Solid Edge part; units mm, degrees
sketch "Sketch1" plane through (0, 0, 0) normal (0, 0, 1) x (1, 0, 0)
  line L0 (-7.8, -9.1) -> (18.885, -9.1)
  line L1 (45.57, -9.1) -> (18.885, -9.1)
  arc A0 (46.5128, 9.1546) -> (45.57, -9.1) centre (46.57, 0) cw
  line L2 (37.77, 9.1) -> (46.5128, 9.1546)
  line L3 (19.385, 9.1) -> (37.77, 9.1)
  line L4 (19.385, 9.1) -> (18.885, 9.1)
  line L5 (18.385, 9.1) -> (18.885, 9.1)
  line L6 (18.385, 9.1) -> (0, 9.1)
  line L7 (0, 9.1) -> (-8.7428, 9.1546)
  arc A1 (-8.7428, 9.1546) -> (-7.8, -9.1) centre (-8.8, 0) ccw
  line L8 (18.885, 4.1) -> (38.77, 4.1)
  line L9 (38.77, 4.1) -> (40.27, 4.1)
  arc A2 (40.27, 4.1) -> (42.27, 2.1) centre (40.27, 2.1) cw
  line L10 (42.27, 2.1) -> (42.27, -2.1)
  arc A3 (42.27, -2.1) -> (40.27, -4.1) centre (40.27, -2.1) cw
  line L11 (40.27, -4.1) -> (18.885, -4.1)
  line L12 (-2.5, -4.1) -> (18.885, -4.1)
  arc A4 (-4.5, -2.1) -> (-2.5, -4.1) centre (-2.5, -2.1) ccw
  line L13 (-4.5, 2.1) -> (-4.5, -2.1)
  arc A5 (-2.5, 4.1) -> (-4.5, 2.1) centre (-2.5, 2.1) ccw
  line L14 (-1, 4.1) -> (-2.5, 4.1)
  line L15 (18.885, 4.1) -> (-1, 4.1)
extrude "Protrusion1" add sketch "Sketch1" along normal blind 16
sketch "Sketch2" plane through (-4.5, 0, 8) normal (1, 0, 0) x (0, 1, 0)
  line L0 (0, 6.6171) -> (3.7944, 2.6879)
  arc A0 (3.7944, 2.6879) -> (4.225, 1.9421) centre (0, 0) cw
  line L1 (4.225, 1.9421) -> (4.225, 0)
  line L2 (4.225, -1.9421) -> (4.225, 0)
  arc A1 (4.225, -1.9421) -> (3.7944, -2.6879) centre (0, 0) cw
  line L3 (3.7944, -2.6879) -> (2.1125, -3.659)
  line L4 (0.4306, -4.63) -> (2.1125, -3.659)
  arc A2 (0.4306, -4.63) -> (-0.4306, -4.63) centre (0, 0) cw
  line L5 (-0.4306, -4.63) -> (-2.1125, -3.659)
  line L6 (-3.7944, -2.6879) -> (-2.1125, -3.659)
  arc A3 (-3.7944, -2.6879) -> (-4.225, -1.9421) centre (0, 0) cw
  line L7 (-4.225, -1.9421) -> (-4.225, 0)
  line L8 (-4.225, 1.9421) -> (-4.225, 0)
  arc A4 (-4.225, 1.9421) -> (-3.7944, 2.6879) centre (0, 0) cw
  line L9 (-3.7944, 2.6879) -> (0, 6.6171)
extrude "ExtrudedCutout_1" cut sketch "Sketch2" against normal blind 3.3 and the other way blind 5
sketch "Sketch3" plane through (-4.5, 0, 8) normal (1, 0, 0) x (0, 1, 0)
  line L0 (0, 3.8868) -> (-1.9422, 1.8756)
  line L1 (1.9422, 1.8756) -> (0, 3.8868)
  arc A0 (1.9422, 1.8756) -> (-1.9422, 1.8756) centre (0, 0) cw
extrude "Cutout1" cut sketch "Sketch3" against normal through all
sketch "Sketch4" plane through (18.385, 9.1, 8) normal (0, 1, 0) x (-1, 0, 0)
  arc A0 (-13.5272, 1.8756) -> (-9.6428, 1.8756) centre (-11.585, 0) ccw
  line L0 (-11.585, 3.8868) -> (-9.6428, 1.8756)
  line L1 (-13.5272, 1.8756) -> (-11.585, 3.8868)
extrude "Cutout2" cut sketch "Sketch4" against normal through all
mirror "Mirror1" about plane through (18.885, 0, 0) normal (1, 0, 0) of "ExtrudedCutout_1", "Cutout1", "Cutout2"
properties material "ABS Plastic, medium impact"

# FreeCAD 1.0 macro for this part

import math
import FreeCAD as App
import Part
import Sketcher
Q = App.Units.Quantity

doc = App.newDocument("Part")
body = doc.addObject("PartDesign::Body", "Body")

# Sketch on XY plane
sketch1 = body.newObject("Sketcher::SketchObject", "Sketch")
sketch1.AttachmentSupport = (doc.getObject("XY_Plane"), [""])
sketch1.MapMode = "FlatFace"
sketch1.addGeometry(Part.ArcOfCircle(Part.Circle(App.Vector(-8.8, 0, 0), App.Vector(0, 0, 1), 9.2), math.radians(90), math.radians(276)), False)
sketch1.addGeometry(Part.LineSegment(App.Vector(-7.8, -9.1, 0), App.Vector(45.6, -9.1, 0)), False)
sketch1.addGeometry(Part.ArcOfCircle(Part.Circle(App.Vector(46.6, 0, 0), App.Vector(0, 0, 1), 9.2), math.radians(-96), math.radians(90)), False)
sketch1.addGeometry(Part.LineSegment(App.Vector(46.5, 9.2, 0), App.Vector(37.8, 9.1, 0)), False)
sketch1.addGeometry(Part.LineSegment(App.Vector(37.8, 9.1, 0), App.Vector(0, 9.1, 0)), False)
sketch1.addGeometry(Part.LineSegment(App.Vector(0, 9.1, 0), App.Vector(-8.7, 9.2, 0)), False)
sketch1.addGeometry(Part.LineSegment(App.Vector(-2.5, 4.1, 0), App.Vector(40.3, 4.1, 0)), False)
sketch1.addGeometry(Part.ArcOfCircle(Part.Circle(App.Vector(40.3, 2.1, 0), App.Vector(0, 0, 1), 2), math.radians(0), math.radians(90)), False)
sketch1.addGeometry(Part.LineSegment(App.Vector(42.3, 2.1, 0), App.Vector(42.3, -2.1, 0)), False)
sketch1.addGeometry(Part.ArcOfCircle(Part.Circle(App.Vector(40.3, -2.1, 0), App.Vector(0, 0, 1), 2), math.radians(-90), math.radians(0)), False)
sketch1.addGeometry(Part.LineSegment(App.Vector(40.3, -4.1, 0), App.Vector(-2.5, -4.1, 0)), False)
sketch1.addGeometry(Part.ArcOfCircle(Part.Circle(App.Vector(-2.5, -2.1, 0), App.Vector(0, 0, 1), 2), math.radians(180), math.radians(270)), False)
sketch1.addGeometry(Part.LineSegment(App.Vector(-4.5, -2.1, 0), App.Vector(-4.5, 2.1, 0)), False)
sketch1.addGeometry(Part.ArcOfCircle(Part.Circle(App.Vector(-2.5, 2.1, 0), App.Vector(0, 0, 1), 2), math.radians(90), math.radians(180)), False)
sketch1.addConstraint(Sketcher.Constraint("Coincident", 0, 2, 1, 1))
sketch1.addConstraint(Sketcher.Constraint("Coincident", 1, 2, 2, 1))
sketch1.addConstraint(Sketcher.Constraint("Tangent", 2, 2, 3, 1))
sketch1.addConstraint(Sketcher.Constraint("Coincident", 3, 2, 4, 1))
sketch1.addConstraint(Sketcher.Constraint("Coincident", 4, 2, 5, 1))
sketch1.addConstraint(Sketcher.Constraint("Tangent", 5, 2, 0, 1))
sketch1.addConstraint(Sketcher.Constraint("Tangent", 6, 2, 7, 2))
sketch1.addConstraint(Sketcher.Constraint("Tangent", 7, 1, 8, 1))
sketch1.addConstraint(Sketcher.Constraint("Tangent", 8, 2, 9, 2))
sketch1.addConstraint(Sketcher.Constraint("Tangent", 9, 1, 10, 1))
sketch1.addConstraint(Sketcher.Constraint("Tangent", 10, 2, 11, 2))
sketch1.addConstraint(Sketcher.Constraint("Tangent", 11, 1, 12, 1))
sketch1.addConstraint(Sketcher.Constraint("Tangent", 12, 2, 13, 2))
sketch1.addConstraint(Sketcher.Constraint("Tangent", 13, 1, 6, 1))
sketch1.addConstraint(Sketcher.Constraint("Horizontal", 1))
sketch1.addConstraint(Sketcher.Constraint("Horizontal", 4))
sketch1.addConstraint(Sketcher.Constraint("Horizontal", 6))
sketch1.addConstraint(Sketcher.Constraint("Vertical", 8))
sketch1.addConstraint(Sketcher.Constraint("Horizontal", 10))
sketch1.addConstraint(Sketcher.Constraint("Vertical", 12))
sketch1.addConstraint(Sketcher.Constraint("Equal", 0, 2))
sketch1.addConstraint(Sketcher.Constraint("Equal", 7, 9))
sketch1.addConstraint(Sketcher.Constraint("Equal", 9, 11))
sketch1.addConstraint(Sketcher.Constraint("Equal", 11, 13))
sketch1.addConstraint(Sketcher.Constraint("PointOnObject", 0, 3, -1))
sketch1.addConstraint(Sketcher.Constraint("PointOnObject", 2, 3, -1))
sketch1.addConstraint(Sketcher.Constraint("PointOnObject", 4, 2, -2))
sketch1.addConstraint(Sketcher.Constraint("Equal", 3, 5))
sketch1.addConstraint(Sketcher.Constraint("Radius", 7, 2.0))
sketch1.addConstraint(Sketcher.Constraint("DistanceY", 8, 2, 8, 1, 4.2))
sketch1.addConstraint(Sketcher.Constraint("DistanceY", 0, 2, 11, 3, 7.0))
sketch1.addConstraint(Sketcher.Constraint("DistanceX", 0, 3, 0, 2, 1.0))
sketch1.addConstraint(Sketcher.Constraint("DistanceY", 7, 3, 3, 2, 7.0))
sketch1.addConstraint(Sketcher.Constraint("DistanceX", 1, 1, 1, 2, 53.37))
sketch1.addConstraint(Sketcher.Constraint("DistanceX", 4, 2, 4, 1, 37.77))
sketch1.addConstraint(Sketcher.Constraint("DistanceX", 6, 1, 6, 2, 42.77))
sketch1.addConstraint(Sketcher.Constraint("DistanceY", -1, 1, 7, 3, 2.1))
sketch1.addConstraint(Sketcher.Constraint("DistanceX", 11, 3, -1, 1, 2.5))
pad1 = body.newObject("PartDesign::Pad", "Pad")
pad1.Profile = sketch1
pad1.Length = 16

# Sketch on YZ plane
sketch2 = body.newObject("Sketcher::SketchObject", "Sketch001")
sketch2.AttachmentSupport = (doc.getObject("YZ_Plane"), [""])
sketch2.MapMode = "FlatFace"
sketch2.AttachmentOffset = App.Placement(App.Vector(0, 0, -4.5), App.Rotation())
sketch2.addGeometry(Part.LineSegment(App.Vector(3.7944, 10.6879, 0), App.Vector(0, 14.6171, 0)), False)
sketch2.addGeometry(Part.LineSegment(App.Vector(0, 14.6171, 0), App.Vector(-3.7944, 10.6879, 0)), False)
sketch2.addGeometry(Part.ArcOfCircle(Part.Circle(App.Vector(-0.001108, 8.000573, 0), App.Vector(0, 0, 1), 4.64874), math.radians(144.684643), math.radians(155.313954)), False)
sketch2.addGeometry(Part.LineSegment(App.Vector(-4.225, 9.9421, 0), App.Vector(-4.225, 6.0579, 0)), False)
sketch2.addGeometry(Part.ArcOfCircle(Part.Circle(App.Vector(0.001051, 8.000674, 0), App.Vector(0, 0, 1), 4.651223), math.radians(-155.311109), math.radians(-144.687488)), False)
sketch2.addGeometry(Part.LineSegment(App.Vector(-3.7944, 5.3121, 0), App.Vector(-2.1125, 4.341, 0)), False)
sketch2.addGeometry(Part.LineSegment(App.Vector(-2.1125, 4.341, 0), App.Vector(-0.4306, 3.37, 0)), False)
sketch2.addGeometry(Part.ArcOfCircle(Part.Circle(App.Vector(0, 8, 0), App.Vector(0, 0, 1), 4.64998), math.radians(-95.313347), math.radians(-84.686653)), False)
sketch2.addGeometry(Part.LineSegment(App.Vector(0.4306, 3.37, 0), App.Vector(2.1125, 4.341, 0)), False)
sketch2.addGeometry(Part.LineSegment(App.Vector(2.1125, 4.341, 0), App.Vector(3.7944, 5.3121, 0)), False)
sketch2.addGeometry(Part.ArcOfCircle(Part.Circle(App.Vector(0.001108, 7.999427, 0), App.Vector(0, 0, 1), 4.64874), math.radians(-35.315357), math.radians(-24.686046)), False)
sketch2.addGeometry(Part.LineSegment(App.Vector(4.225, 6.0579, 0), App.Vector(4.225, 9.9421, 0)), False)
sketch2.addGeometry(Part.ArcOfCircle(Part.Circle(App.Vector(-0.001051, 7.999326, 0), App.Vector(0, 0, 1), 4.651223), math.radians(24.688891), math.radians(35.312512)), False)
sketch2.addConstraint(Sketcher.Constraint("Coincident", 0, 2, 1, 1))
sketch2.addConstraint(Sketcher.Constraint("Coincident", 1, 2, 2, 1))
sketch2.addConstraint(Sketcher.Constraint("Coincident", 2, 2, 3, 1))
sketch2.addConstraint(Sketcher.Constraint("Coincident", 3, 2, 4, 1))
sketch2.addConstraint(Sketcher.Constraint("Coincident", 4, 2, 5, 1))
sketch2.addConstraint(Sketcher.Constraint("Coincident", 5, 2, 6, 1))
sketch2.addConstraint(Sketcher.Constraint("Coincident", 6, 2, 7, 1))
sketch2.addConstraint(Sketcher.Constraint("Coincident", 7, 2, 8, 1))
sketch2.addConstraint(Sketcher.Constraint("Coincident", 8, 2, 9, 1))
sketch2.addConstraint(Sketcher.Constraint("Coincident", 9, 2, 10, 1))
sketch2.addConstraint(Sketcher.Constraint("Coincident", 10, 2, 11, 1))
sketch2.addConstraint(Sketcher.Constraint("Coincident", 11, 2, 12, 1))
sketch2.addConstraint(Sketcher.Constraint("Coincident", 12, 2, 0, 1))
sketch2.addConstraint(Sketcher.Constraint("Vertical", 3))
sketch2.addConstraint(Sketcher.Constraint("Vertical", 11))
sketch2.addConstraint(Sketcher.Constraint("Equal", 2, 10))
sketch2.addConstraint(Sketcher.Constraint("Equal", 4, 12))
sketch2.addConstraint(Sketcher.Constraint("Symmetric", 2, 3, 4, 3, -2))
sketch2.addConstraint(Sketcher.Constraint("Symmetric", 10, 3, 12, 3, -2))
sketch2.addConstraint(Sketcher.Constraint("Symmetric", 6, 2, 7, 2, -2))
sketch2.addConstraint(Sketcher.Constraint("Symmetric", 5, 2, 8, 2, -2))
sketch2.addConstraint(Sketcher.Constraint("Symmetric", 4, 2, 9, 2, -2))
sketch2.addConstraint(Sketcher.Constraint("Symmetric", 3, 2, 10, 2, -2))
sketch2.addConstraint(Sketcher.Constraint("PointOnObject", 0, 2, -2))
sketch2.addConstraint(Sketcher.Constraint("Parallel", 5, 6))
sketch2.addConstraint(Sketcher.Constraint("Horizontal", 1, 2, 12, 2))
sketch2.addConstraint(Sketcher.Constraint("Vertical", 4, 3, 10, 3))
sketch2.addConstraint(Sketcher.Constraint("Vertical", 1, 2, 4, 2))
sketch2.addConstraint(Sketcher.Constraint("Equal", 5, 6))
sketch2.addConstraint(Sketcher.Constraint("Angle", 0, Q("134 deg")))
sketch2.addConstraint(Sketcher.Constraint("Angle", 6, Q("-29.9988 deg")))
sketch2.addConstraint(Sketcher.Constraint("Radius", 7, 4.65))
sketch2.addConstraint(Sketcher.Constraint("DistanceY", -1, 1, 7, 3, 8.0))
sketch2.addConstraint(Sketcher.Constraint("Radius", 2, 4.6487))
sketch2.addConstraint(Sketcher.Constraint("Radius", 4, 4.6512))
sketch2.addConstraint(Sketcher.Constraint("DistanceY", -1, 1, 6, 2, 3.37))
sketch2.addConstraint(Sketcher.Constraint("DistanceY", 3, 2, 1, 2, 4.63))
sketch2.addConstraint(Sketcher.Constraint("Distance", 5, 1.942))
pocket1 = body.newObject("PartDesign::Pocket", "Pocket")
pocket1.Profile = sketch2
pocket1.Type = "TwoLengths"
pocket1.Length = 3.3
pocket1.Length2 = 5

# Sketch on YZ plane
sketch3 = body.newObject("Sketcher::SketchObject", "Sketch002")
sketch3.AttachmentSupport = (doc.getObject("YZ_Plane"), [""])
sketch3.MapMode = "FlatFace"
sketch3.AttachmentOffset = App.Placement(App.Vector(0, 0, -4.5), App.Rotation())
sketch3.addGeometry(Part.LineSegment(App.Vector(1.9, 9.9, 0), App.Vector(0, 11.9, 0)), False)
sketch3.addGeometry(Part.LineSegment(App.Vector(0, 11.9, 0), App.Vector(-1.9, 9.9, 0)), False)
sketch3.addGeometry(Part.ArcOfCircle(Part.Circle(App.Vector(0, 8, 0), App.Vector(0, 0, 1), 2.7), math.radians(136), math.radians(404)), False)
sketch3.addConstraint(Sketcher.Constraint("Coincident", 0, 2, 1, 1))
sketch3.addConstraint(Sketcher.Constraint("Tangent", 1, 2, 2, 1))
sketch3.addConstraint(Sketcher.Constraint("Tangent", 2, 2, 0, 1))
sketch3.addConstraint(Sketcher.Constraint("Symmetric", 1, 2, 2, 2, -2))
sketch3.addConstraint(Sketcher.Constraint("Radius", 2, 2.7))
sketch3.addConstraint(Sketcher.Constraint("Angle", 0, Q("134 deg")))
sketch3.addConstraint(Sketcher.Constraint("DistanceY", -1, 1, 2, 3, 8.0))
pocket2 = body.newObject("PartDesign::Pocket", "Pocket001")
pocket2.Profile = sketch3
pocket2.Type = "ThroughAll"

# Sketch on XZ plane
sketch4 = body.newObject("Sketcher::SketchObject", "Sketch003")
sketch4.AttachmentSupport = (doc.getObject("XZ_Plane"), [""])
sketch4.MapMode = "FlatFace"
sketch4.AttachmentOffset = App.Placement(App.Vector(0, 0, -9.1), App.Rotation())
sketch4.addGeometry(Part.LineSegment(App.Vector(30, 11.9, 0), App.Vector(31.9, 9.9, 0)), False)
sketch4.addGeometry(Part.ArcOfCircle(Part.Circle(App.Vector(30, 8, 0), App.Vector(0, 0, 1), 2.7), math.radians(136), math.radians(404)), False)
sketch4.addGeometry(Part.LineSegment(App.Vector(28, 9.9, 0), App.Vector(30, 11.9, 0)), False)
sketch4.addConstraint(Sketcher.Constraint("Tangent", 0, 2, 1, 2))
sketch4.addConstraint(Sketcher.Constraint("Tangent", 1, 1, 2, 1))
sketch4.addConstraint(Sketcher.Constraint("Coincident", 2, 2, 0, 1))
sketch4.addConstraint(Sketcher.Constraint("Horizontal", 0, 2, 1, 1))
sketch4.addConstraint(Sketcher.Constraint("Radius", 1, 2.7))
sketch4.addConstraint(Sketcher.Constraint("Angle", 0, Q("-46 deg")))
sketch4.addConstraint(Sketcher.Constraint("DistanceY", -1, 1, 1, 3, 8.0))
sketch4.addConstraint(Sketcher.Constraint("DistanceX", -1, 1, 1, 3, 29.97))
pocket3 = body.newObject("PartDesign::Pocket", "Pocket002")
pocket3.Profile = sketch4
pocket3.Type = "ThroughAll"
pocket3.Reversed = True
doc.recompute()

datumplane = body.newObject("PartDesign::Plane", "DatumPlane")
datumplane.AttachmentSupport = (doc.getObject("YZ_Plane"), [""])
datumplane.MapMode = "FlatFace"
datumplane.AttachmentOffset = App.Placement(App.Vector(0, 0, 18.885), App.Rotation())
mirrored = body.newObject("PartDesign::Mirrored", "Mirrored")
mirrored.Originals = [pocket1, pocket2, pocket3]
mirrored.MirrorPlane = (datumplane, [""])
body.Tip = mirrored

doc.recompute()
